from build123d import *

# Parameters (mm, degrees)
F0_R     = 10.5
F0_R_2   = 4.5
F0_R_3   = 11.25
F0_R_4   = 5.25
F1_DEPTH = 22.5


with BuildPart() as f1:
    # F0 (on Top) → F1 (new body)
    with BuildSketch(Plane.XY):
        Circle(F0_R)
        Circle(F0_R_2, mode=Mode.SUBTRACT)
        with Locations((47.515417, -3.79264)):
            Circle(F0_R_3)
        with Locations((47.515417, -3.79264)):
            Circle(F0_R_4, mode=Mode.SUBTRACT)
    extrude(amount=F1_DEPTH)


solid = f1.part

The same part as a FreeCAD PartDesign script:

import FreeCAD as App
import Part
import Sketcher

V = App.Vector
Q = App.Units.Quantity

doc = App.newDocument("Part")
body = doc.addObject("PartDesign::Body", "Body")
body.AllowCompound = True

# Sketch on XY plane
sketch1 = body.newObject("Sketcher::SketchObject", "Sketch")
sketch1.AttachmentSupport = (doc.getObject("XY_Plane"), [""])
sketch1.MapMode = "FlatFace"
sketch1.addGeometry(Part.Circle(V(0, 0, 0), V(0, 0, 1), 10.5), False)
sketch1.addGeometry(Part.Circle(V(0, 0, 0), V(0, 0, 1), 4.5), False)
sketch1.addGeometry(Part.Circle(V(47.5, -3.8, 0), V(0, 0, 1), 11.2), False)
sketch1.addGeometry(Part.Circle(V(47.5, -3.8, 0), V(0, 0, 1), 5.2), False)
sketch1.addConstraint(Sketcher.Constraint("Coincident", 0, 3, -1, 1))
sketch1.addConstraint(Sketcher.Constraint("Coincident", 1, 3, -1, 1))
sketch1.addConstraint(Sketcher.Constraint("Coincident", 3, 3, 2, 3))
sketch1.addConstraint(Sketcher.Constraint("Diameter", 0, Q("21 mm")))
sketch1.addConstraint(Sketcher.Constraint("Diameter", 1, Q("9 mm")))
sketch1.addConstraint(Sketcher.Constraint("Diameter", 2, Q("22.5 mm")))
sketch1.addConstraint(Sketcher.Constraint("Diameter", 3, Q("10.5 mm")))
sketch1.addConstraint(Sketcher.Constraint("DistanceY", 2, 3, -1, 1, Q("3.79264 mm")))
sketch1.addConstraint(Sketcher.Constraint("DistanceX", -1, 1, 2, 3, Q("47.515417 mm")))
pad1 = body.newObject("PartDesign::Pad", "Pad")
pad1.Profile = sketch1
pad1.Length = 22.5

doc.recompute()
